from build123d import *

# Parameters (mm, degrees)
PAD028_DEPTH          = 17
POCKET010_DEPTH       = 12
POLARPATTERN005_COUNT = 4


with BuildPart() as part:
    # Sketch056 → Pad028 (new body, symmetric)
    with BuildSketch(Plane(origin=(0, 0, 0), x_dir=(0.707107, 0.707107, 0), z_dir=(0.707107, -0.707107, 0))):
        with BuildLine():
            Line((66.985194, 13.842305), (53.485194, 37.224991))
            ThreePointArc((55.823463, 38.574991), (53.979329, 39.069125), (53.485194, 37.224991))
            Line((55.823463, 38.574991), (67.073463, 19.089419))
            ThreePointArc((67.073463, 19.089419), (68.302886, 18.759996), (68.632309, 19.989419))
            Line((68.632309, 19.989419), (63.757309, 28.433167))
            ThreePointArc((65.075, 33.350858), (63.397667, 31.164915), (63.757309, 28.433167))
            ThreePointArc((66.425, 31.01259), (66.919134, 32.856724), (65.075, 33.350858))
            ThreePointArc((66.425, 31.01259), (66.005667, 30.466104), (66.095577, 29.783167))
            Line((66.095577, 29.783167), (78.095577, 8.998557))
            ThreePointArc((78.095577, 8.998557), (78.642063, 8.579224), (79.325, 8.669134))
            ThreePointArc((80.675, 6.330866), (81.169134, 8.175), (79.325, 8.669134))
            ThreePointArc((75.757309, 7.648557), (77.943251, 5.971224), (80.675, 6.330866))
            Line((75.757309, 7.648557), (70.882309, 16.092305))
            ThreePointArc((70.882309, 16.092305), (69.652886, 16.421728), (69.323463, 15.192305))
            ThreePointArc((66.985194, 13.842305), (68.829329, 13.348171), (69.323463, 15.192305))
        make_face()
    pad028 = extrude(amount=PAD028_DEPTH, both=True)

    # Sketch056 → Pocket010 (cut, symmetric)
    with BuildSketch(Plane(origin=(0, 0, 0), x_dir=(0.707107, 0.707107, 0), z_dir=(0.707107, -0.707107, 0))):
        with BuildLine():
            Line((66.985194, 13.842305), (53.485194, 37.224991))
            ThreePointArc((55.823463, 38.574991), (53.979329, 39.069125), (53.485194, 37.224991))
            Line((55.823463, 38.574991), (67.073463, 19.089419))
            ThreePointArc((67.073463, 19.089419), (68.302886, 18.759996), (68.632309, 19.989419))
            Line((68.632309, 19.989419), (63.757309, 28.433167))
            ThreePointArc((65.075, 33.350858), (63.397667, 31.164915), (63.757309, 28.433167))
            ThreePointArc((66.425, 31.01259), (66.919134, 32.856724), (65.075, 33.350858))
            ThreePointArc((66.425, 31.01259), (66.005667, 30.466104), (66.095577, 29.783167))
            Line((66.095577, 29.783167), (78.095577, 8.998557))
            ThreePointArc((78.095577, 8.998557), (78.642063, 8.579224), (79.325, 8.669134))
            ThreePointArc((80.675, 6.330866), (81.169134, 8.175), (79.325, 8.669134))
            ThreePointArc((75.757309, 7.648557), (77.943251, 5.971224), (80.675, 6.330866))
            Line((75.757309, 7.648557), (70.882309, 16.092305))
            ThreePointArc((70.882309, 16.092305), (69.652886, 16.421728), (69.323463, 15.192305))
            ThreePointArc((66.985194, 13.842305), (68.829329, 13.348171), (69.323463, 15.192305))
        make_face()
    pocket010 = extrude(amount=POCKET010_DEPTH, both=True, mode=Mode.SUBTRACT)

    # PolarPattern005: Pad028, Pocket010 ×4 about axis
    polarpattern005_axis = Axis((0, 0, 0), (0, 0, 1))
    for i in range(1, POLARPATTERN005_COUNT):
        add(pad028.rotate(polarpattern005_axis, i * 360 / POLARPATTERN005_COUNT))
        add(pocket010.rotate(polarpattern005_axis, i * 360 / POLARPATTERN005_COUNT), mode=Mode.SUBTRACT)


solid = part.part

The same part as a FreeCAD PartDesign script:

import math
import FreeCAD as App
import Part
import Sketcher

V = App.Vector
Q = App.Units.Quantity

doc = App.newDocument("Part")
body = doc.addObject("PartDesign::Body", "Body")
body.AllowCompound = True

# Sketch on an angled plane
sketch1 = doc.addObject("Sketcher::SketchObject", "Sketch")
body.addObject(sketch1)
sketch1.Placement = App.Placement(V(0, 0, 0), App.Rotation(V(0.707106781, 0.707106781, 0), V(0, 0, 0.999999999), V(0.707106781, -0.707106781, 0), "ZXY"))
sketch1.addGeometry(Part.LineSegment(V(53.5, 37.2, 0), V(67, 13.8, 0)), False)
sketch1.addGeometry(Part.ArcOfCircle(Part.Circle(V(68.2, 14.5, 0), V(0, 0, 1), 1.4), math.radians(-150), math.radians(30)), False)
sketch1.addGeometry(Part.ArcOfCircle(Part.Circle(V(70.1, 15.6, 0), V(0, 0, 1), 0.9), math.radians(30), math.radians(210)), False)
sketch1.addGeometry(Part.LineSegment(V(70.9, 16.1, 0), V(75.8, 7.6, 0)), False)
sketch1.addGeometry(Part.ArcOfCircle(Part.Circle(V(78.9, 9.4, 0), V(0, 0, 1), 3.6), math.radians(-150), math.radians(-60)), False)
sketch1.addGeometry(Part.ArcOfCircle(Part.Circle(V(80, 7.5, 0), V(0, 0, 1), 1.3), math.radians(-60), math.radians(120)), False)
sketch1.addGeometry(Part.ArcOfCircle(Part.Circle(V(78.9, 9.4, 0), V(0, 0, 1), 0.9), math.radians(-150), math.radians(-60)), False)
sketch1.addGeometry(Part.LineSegment(V(78.1, 9, 0), V(66.1, 29.8, 0)), False)
sketch1.addGeometry(Part.ArcOfCircle(Part.Circle(V(66.9, 30.2, 0), V(0, 0, 1), 0.9), math.radians(120), math.radians(210)), False)
sketch1.addGeometry(Part.ArcOfCircle(Part.Circle(V(65.7, 32.2, 0), V(0, 0, 1), 1.3), math.radians(-60), math.radians(120)), False)
sketch1.addGeometry(Part.ArcOfCircle(Part.Circle(V(66.9, 30.2, 0), V(0, 0, 1), 3.6), math.radians(120), math.radians(210)), False)
sketch1.addGeometry(Part.LineSegment(V(63.8, 28.4, 0), V(68.6, 20, 0)), False)
sketch1.addGeometry(Part.ArcOfCircle(Part.Circle(V(67.9, 19.5, 0), V(0, 0, 1), 0.9), math.radians(-150), math.radians(30)), False)
sketch1.addGeometry(Part.LineSegment(V(67.1, 19.1, 0), V(55.8, 38.6, 0)), False)
sketch1.addGeometry(Part.ArcOfCircle(Part.Circle(V(54.7, 37.9, 0), V(0, 0, 1), 1.4), math.radians(30), math.radians(210)), False)
sketch1.addConstraint(Sketcher.Constraint("Tangent", 0, 2, 1, 1))
sketch1.addConstraint(Sketcher.Constraint("Tangent", 1, 2, 2, 2))
sketch1.addConstraint(Sketcher.Constraint("Tangent", 2, 1, 3, 1))
sketch1.addConstraint(Sketcher.Constraint("Tangent", 3, 2, 4, 1))
sketch1.addConstraint(Sketcher.Constraint("Tangent", 4, 2, 5, 1))
sketch1.addConstraint(Sketcher.Constraint("Tangent", 5, 2, 6, 2))
sketch1.addConstraint(Sketcher.Constraint("Tangent", 6, 1, 7, 1))
sketch1.addConstraint(Sketcher.Constraint("Tangent", 7, 2, 8, 2))
sketch1.addConstraint(Sketcher.Constraint("Tangent", 8, 1, 9, 1))
sketch1.addConstraint(Sketcher.Constraint("Tangent", 9, 2, 10, 1))
sketch1.addConstraint(Sketcher.Constraint("Tangent", 10, 2, 11, 1))
sketch1.addConstraint(Sketcher.Constraint("Tangent", 11, 2, 12, 2))
sketch1.addConstraint(Sketcher.Constraint("Tangent", 12, 1, 13, 1))
sketch1.addConstraint(Sketcher.Constraint("Tangent", 13, 2, 14, 1))
sketch1.addConstraint(Sketcher.Constraint("Tangent", 14, 2, 0, 1))
sketch1.addConstraint(Sketcher.Constraint("Coincident", 6, 3, 4, 3))
sketch1.addConstraint(Sketcher.Constraint("Coincident", 10, 3, 8, 3))
sketch1.addConstraint(Sketcher.Constraint("Equal", 1, 5))
sketch1.addConstraint(Sketcher.Constraint("Equal", 2, 6))
sketch1.addConstraint(Sketcher.Constraint("Equal", 6, 8))
sketch1.addConstraint(Sketcher.Constraint("Equal", 5, 9))
sketch1.addConstraint(Sketcher.Constraint("Equal", 8, 12))
sketch1.addConstraint(Sketcher.Constraint("Equal", 9, 14))
sketch1.addConstraint(Sketcher.Constraint("Parallel", 0, 3))
sketch1.addConstraint(Sketcher.Constraint("Parallel", 3, 7))
sketch1.addConstraint(Sketcher.Constraint("Parallel", 7, 11))
sketch1.addConstraint(Sketcher.Constraint("Equal", 3, 11))
sketch1.addConstraint(Sketcher.Constraint("Radius", 2, 0.9))
sketch1.addConstraint(Sketcher.Constraint("Radius", 4, 3.599998))
sketch1.addConstraint(Sketcher.Constraint("Angle", 0, Q("-60 deg")))
sketch1.addConstraint(Sketcher.Constraint("Distance", 0, 27.0))
sketch1.addConstraint(Sketcher.Constraint("Distance", 7, 24.0))
sketch1.addConstraint(Sketcher.Constraint("DistanceX", -1, 1, 5, 3, 80.0))
sketch1.addConstraint(Sketcher.Constraint("Distance", 13, 22.5))
sketch1.addConstraint(Sketcher.Constraint("DistanceY", -1, 1, 5, 3, 7.5))
sketch1.addConstraint(Sketcher.Constraint("DistanceY", 0, 2, 2, 3, 1.8))
sketch1.addConstraint(Sketcher.Constraint("DistanceX", 4, 3, 4, 2, 1.8))
sketch1.addConstraint(Sketcher.Constraint("DistanceX", 9, 2, 10, 3, 1.799999))
pad1 = doc.addObject("PartDesign::Pad", "Pad")
body.addObject(pad1)
pad1.Profile = sketch1
pad1.Length = 34
pad1.Midplane = True

# Sketch on an angled plane
sketch2 = doc.addObject("Sketcher::SketchObject", "Sketch001")
body.addObject(sketch2)
sketch2.Placement = App.Placement(V(0, 0, 0), App.Rotation(V(0.707106781, 0.707106781, 0), V(0, 0, 0.999999999), V(0.707106781, -0.707106781, 0), "ZXY"))
sketch2.addGeometry(Part.LineSegment(V(53.5, 37.2, 0), V(67, 13.8, 0)), False)
sketch2.addGeometry(Part.ArcOfCircle(Part.Circle(V(68.2, 14.5, 0), V(0, 0, 1), 1.4), math.radians(-150), math.radians(30)), False)
sketch2.addGeometry(Part.ArcOfCircle(Part.Circle(V(70.1, 15.6, 0), V(0, 0, 1), 0.9), math.radians(30), math.radians(210)), False)
sketch2.addGeometry(Part.LineSegment(V(70.9, 16.1, 0), V(75.8, 7.6, 0)), False)
sketch2.addGeometry(Part.ArcOfCircle(Part.Circle(V(78.9, 9.4, 0), V(0, 0, 1), 3.6), math.radians(-150), math.radians(-60)), False)
sketch2.addGeometry(Part.ArcOfCircle(Part.Circle(V(80, 7.5, 0), V(0, 0, 1), 1.3), math.radians(-60), math.radians(120)), False)
sketch2.addGeometry(Part.ArcOfCircle(Part.Circle(V(78.9, 9.4, 0), V(0, 0, 1), 0.9), math.radians(-150), math.radians(-60)), False)
sketch2.addGeometry(Part.LineSegment(V(78.1, 9, 0), V(66.1, 29.8, 0)), False)
sketch2.addGeometry(Part.ArcOfCircle(Part.Circle(V(66.9, 30.2, 0), V(0, 0, 1), 0.9), math.radians(120), math.radians(210)), False)
sketch2.addGeometry(Part.ArcOfCircle(Part.Circle(V(65.7, 32.2, 0), V(0, 0, 1), 1.3), math.radians(-60), math.radians(120)), False)
sketch2.addGeometry(Part.ArcOfCircle(Part.Circle(V(66.9, 30.2, 0), V(0, 0, 1), 3.6), math.radians(120), math.radians(210)), False)
sketch2.addGeometry(Part.LineSegment(V(63.8, 28.4, 0), V(68.6, 20, 0)), False)
sketch2.addGeometry(Part.ArcOfCircle(Part.Circle(V(67.9, 19.5, 0), V(0, 0, 1), 0.9), math.radians(-150), math.radians(30)), False)
sketch2.addGeometry(Part.LineSegment(V(67.1, 19.1, 0), V(55.8, 38.6, 0)), False)
sketch2.addGeometry(Part.ArcOfCircle(Part.Circle(V(54.7, 37.9, 0), V(0, 0, 1), 1.4), math.radians(30), math.radians(210)), False)
sketch2.addConstraint(Sketcher.Constraint("Tangent", 0, 2, 1, 1))
sketch2.addConstraint(Sketcher.Constraint("Tangent", 1, 2, 2, 2))
sketch2.addConstraint(Sketcher.Constraint("Tangent", 2, 1, 3, 1))
sketch2.addConstraint(Sketcher.Constraint("Tangent", 3, 2, 4, 1))
sketch2.addConstraint(Sketcher.Constraint("Tangent", 4, 2, 5, 1))
sketch2.addConstraint(Sketcher.Constraint("Tangent", 5, 2, 6, 2))
sketch2.addConstraint(Sketcher.Constraint("Tangent", 6, 1, 7, 1))
sketch2.addConstraint(Sketcher.Constraint("Tangent", 7, 2, 8, 2))
sketch2.addConstraint(Sketcher.Constraint("Tangent", 8, 1, 9, 1))
sketch2.addConstraint(Sketcher.Constraint("Tangent", 9, 2, 10, 1))
sketch2.addConstraint(Sketcher.Constraint("Tangent", 10, 2, 11, 1))
sketch2.addConstraint(Sketcher.Constraint("Tangent", 11, 2, 12, 2))
sketch2.addConstraint(Sketcher.Constraint("Tangent", 12, 1, 13, 1))
sketch2.addConstraint(Sketcher.Constraint("Tangent", 13, 2, 14, 1))
sketch2.addConstraint(Sketcher.Constraint("Tangent", 14, 2, 0, 1))
sketch2.addConstraint(Sketcher.Constraint("Coincident", 6, 3, 4, 3))
sketch2.addConstraint(Sketcher.Constraint("Coincident", 10, 3, 8, 3))
sketch2.addConstraint(Sketcher.Constraint("Equal", 1, 5))
sketch2.addConstraint(Sketcher.Constraint("Equal", 2, 6))
sketch2.addConstraint(Sketcher.Constraint("Equal", 6, 8))
sketch2.addConstraint(Sketcher.Constraint("Equal", 5, 9))
sketch2.addConstraint(Sketcher.Constraint("Equal", 8, 12))
sketch2.addConstraint(Sketcher.Constraint("Equal", 9, 14))
sketch2.addConstraint(Sketcher.Constraint("Parallel", 0, 3))
sketch2.addConstraint(Sketcher.Constraint("Parallel", 3, 7))
sketch2.addConstraint(Sketcher.Constraint("Parallel", 7, 11))
sketch2.addConstraint(Sketcher.Constraint("Equal", 3, 11))
sketch2.addConstraint(Sketcher.Constraint("Radius", 2, 0.9))
sketch2.addConstraint(Sketcher.Constraint("Radius", 4, 3.599998))
sketch2.addConstraint(Sketcher.Constraint("Angle", 0, Q("-60 deg")))
sketch2.addConstraint(Sketcher.Constraint("Distance", 0, 27.0))
sketch2.addConstraint(Sketcher.Constraint("Distance", 7, 24.0))
sketch2.addConstraint(Sketcher.Constraint("DistanceX", -1, 1, 5, 3, 80.0))
sketch2.addConstraint(Sketcher.Constraint("Distance", 13, 22.5))
sketch2.addConstraint(Sketcher.Constraint("DistanceY", -1, 1, 5, 3, 7.5))
sketch2.addConstraint(Sketcher.Constraint("DistanceY", 0, 2, 2, 3, 1.8))
sketch2.addConstraint(Sketcher.Constraint("DistanceX", 4, 3, 4, 2, 1.8))
sketch2.addConstraint(Sketcher.Constraint("DistanceX", 9, 2, 10, 3, 1.799999))
pocket1 = doc.addObject("PartDesign::Pocket", "Pocket")
body.addObject(pocket1)
pocket1.Profile = sketch2
pocket1.Length = 24
pocket1.Midplane = True
doc.recompute()

polarpattern = doc.addObject("PartDesign::PolarPattern", "PolarPattern")
body.addObject(polarpattern)
polarpattern.Originals = [pad1, pocket1]
polarpattern.Axis = (doc.Z_Axis, [""])
polarpattern.Angle = 360
polarpattern.Occurrences = 4
body.Tip = polarpattern

doc.recompute()
